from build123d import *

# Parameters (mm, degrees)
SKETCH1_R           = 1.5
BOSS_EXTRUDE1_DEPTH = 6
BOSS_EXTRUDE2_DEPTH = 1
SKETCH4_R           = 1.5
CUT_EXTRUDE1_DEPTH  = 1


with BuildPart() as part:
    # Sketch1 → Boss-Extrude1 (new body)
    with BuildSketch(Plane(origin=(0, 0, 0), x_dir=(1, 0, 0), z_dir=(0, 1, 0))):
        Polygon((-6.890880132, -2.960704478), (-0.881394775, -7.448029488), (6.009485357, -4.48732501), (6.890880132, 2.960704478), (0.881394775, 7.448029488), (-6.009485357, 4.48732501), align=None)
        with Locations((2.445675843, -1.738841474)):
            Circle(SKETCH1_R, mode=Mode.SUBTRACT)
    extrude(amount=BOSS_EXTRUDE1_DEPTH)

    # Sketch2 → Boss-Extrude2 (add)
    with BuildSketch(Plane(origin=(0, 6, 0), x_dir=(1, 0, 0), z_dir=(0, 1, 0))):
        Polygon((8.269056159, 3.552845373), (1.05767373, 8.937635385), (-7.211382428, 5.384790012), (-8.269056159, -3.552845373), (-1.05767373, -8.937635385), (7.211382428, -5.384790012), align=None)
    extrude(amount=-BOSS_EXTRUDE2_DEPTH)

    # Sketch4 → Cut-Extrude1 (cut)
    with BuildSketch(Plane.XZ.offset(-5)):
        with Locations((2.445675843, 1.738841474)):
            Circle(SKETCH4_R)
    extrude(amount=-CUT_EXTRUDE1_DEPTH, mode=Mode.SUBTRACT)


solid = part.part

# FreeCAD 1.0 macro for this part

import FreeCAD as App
import Part
import Sketcher
from FreeCAD import Vector

doc = App.newDocument("Part")
body = doc.addObject("PartDesign::Body", "Body")

# Sketch on XZ plane
sketch1 = doc.addObject("Sketcher::SketchObject", "Sketch")
body.addObject(sketch1)
sketch1.AttachmentSupport = (doc.XZ_Plane, [""])
sketch1.MapMode = "FlatFace"
sketch1.addGeometry([
    Part.LineSegment(Vector(-6.9, 3, 0), Vector(-0.9, 7.4, 0)),  # 0
    Part.LineSegment(Vector(-0.9, 7.4, 0), Vector(6, 4.5, 0)),  # 1
    Part.LineSegment(Vector(6, 4.5, 0), Vector(6.9, -3, 0)),  # 2
    Part.LineSegment(Vector(6.9, -3, 0), Vector(0.9, -7.4, 0)),  # 3
    Part.LineSegment(Vector(0.9, -7.4, 0), Vector(-6, -4.5, 0)),  # 4
    Part.LineSegment(Vector(-6, -4.5, 0), Vector(-6.9, 3, 0)),  # 5
    Part.Circle(Vector(2.4, 1.7, 0), Vector(0, 0, 1), 1.5),  # 6
], False)
sketch1.addConstraint([
    Sketcher.Constraint("Coincident", 0, 2, 1, 1),
    Sketcher.Constraint("Coincident", 1, 2, 2, 1),
    Sketcher.Constraint("Coincident", 2, 2, 3, 1),
    Sketcher.Constraint("Coincident", 3, 2, 4, 1),
    Sketcher.Constraint("Coincident", 4, 2, 5, 1),
    Sketcher.Constraint("Coincident", 5, 2, 0, 1),
    Sketcher.Constraint("Symmetric", 0, 2, 3, 2, -1, 1),
    Sketcher.Constraint("Symmetric", 1, 2, 4, 2, -1, 1),
    Sketcher.Constraint("Symmetric", 2, 2, 5, 2, -1, 1),
    Sketcher.Constraint("Equal", 0, 1),
    Sketcher.Constraint("Equal", 1, 2),
    Sketcher.Constraint("Diameter", 6, 3.0),
    Sketcher.Constraint("Distance", 0, 7.5),
    Sketcher.Constraint("DistanceY", -1, 1, 6, 3, 1.738841),
    Sketcher.Constraint("DistanceY", -1, 1, 0, 2, 7.448029),
    Sketcher.Constraint("DistanceX", -1, 1, 2, 2, 6.89088),
    Sketcher.Constraint("DistanceX", 0, 2, 6, 3, 3.327071),
    Sketcher.Constraint("DistanceX", 6, 3, 1, 2, 3.56381),
])
pad1 = doc.addObject("PartDesign::Pad", "Pad")
body.addObject(pad1)
pad1.Profile = sketch1
pad1.Length = 6
pad1.Reversed = True

# Sketch on XZ plane
sketch2 = doc.addObject("Sketcher::SketchObject", "Sketch001")
body.addObject(sketch2)
sketch2.AttachmentSupport = (doc.XZ_Plane, [""])
sketch2.MapMode = "FlatFace"
sketch2.AttachmentOffset = App.Placement(Vector(0, 0, -6), App.Rotation())
sketch2.addGeometry([
    Part.LineSegment(Vector(8, -4, 0), Vector(1, -9, 0)),  # 0
    Part.LineSegment(Vector(1, -9, 0), Vector(-7, -5, 0)),  # 1
    Part.LineSegment(Vector(-7, -5, 0), Vector(-8, 4, 0)),  # 2
    Part.LineSegment(Vector(-8, 4, 0), Vector(-1, 9, 0)),  # 3
    Part.LineSegment(Vector(-1, 9, 0), Vector(7, 5, 0)),  # 4
    Part.LineSegment(Vector(7, 5, 0), Vector(8, -4, 0)),  # 5
], False)
sketch2.addConstraint([
    Sketcher.Constraint("Coincident", 0, 2, 1, 1),
    Sketcher.Constraint("Coincident", 1, 2, 2, 1),
    Sketcher.Constraint("Coincident", 2, 2, 3, 1),
    Sketcher.Constraint("Coincident", 3, 2, 4, 1),
    Sketcher.Constraint("Coincident", 4, 2, 5, 1),
    Sketcher.Constraint("Coincident", 5, 2, 0, 1),
    Sketcher.Constraint("Symmetric", 0, 2, 3, 2, -1, 1),
    Sketcher.Constraint("Symmetric", 1, 2, 4, 2, -1, 1),
    Sketcher.Constraint("Symmetric", 2, 2, 5, 2, -1, 1),
    Sketcher.Constraint("Equal", 0, 1),
    Sketcher.Constraint("Equal", 1, 2),
    Sketcher.Constraint("Distance", 0, 9.0),
    Sketcher.Constraint("DistanceY", 1, 2, -1, 1, 5.38479),
    Sketcher.Constraint("DistanceX", 2, 2, 0, 2, 9.32673),
    Sketcher.Constraint("DistanceY", 0, 2, 2, 2, 12.490481),
])
pad2 = doc.addObject("PartDesign::Pad", "Pad001")
body.addObject(pad2)
pad2.Profile = sketch2
pad2.Length = 1

# Sketch on XZ plane
sketch3 = doc.addObject("Sketcher::SketchObject", "Sketch002")
body.addObject(sketch3)
sketch3.AttachmentSupport = (doc.XZ_Plane, [""])
sketch3.MapMode = "FlatFace"
sketch3.AttachmentOffset = App.Placement(Vector(0, 0, -5), App.Rotation())
sketch3.addGeometry(Part.Circle(Vector(2.4, 1.7, 0), Vector(0, 0, 1), 1.5), False)
sketch3.addConstraint([
    Sketcher.Constraint("Diameter", 0, 3.0),
    Sketcher.Constraint("DistanceY", -1, 1, 0, 3, 1.738841),
    Sketcher.Constraint("DistanceX", -1, 1, 0, 3, 2.445676),
])
pocket1 = doc.addObject("PartDesign::Pocket", "Pocket")
body.addObject(pocket1)
pocket1.Profile = sketch3
pocket1.Length = 1

doc.recompute()
